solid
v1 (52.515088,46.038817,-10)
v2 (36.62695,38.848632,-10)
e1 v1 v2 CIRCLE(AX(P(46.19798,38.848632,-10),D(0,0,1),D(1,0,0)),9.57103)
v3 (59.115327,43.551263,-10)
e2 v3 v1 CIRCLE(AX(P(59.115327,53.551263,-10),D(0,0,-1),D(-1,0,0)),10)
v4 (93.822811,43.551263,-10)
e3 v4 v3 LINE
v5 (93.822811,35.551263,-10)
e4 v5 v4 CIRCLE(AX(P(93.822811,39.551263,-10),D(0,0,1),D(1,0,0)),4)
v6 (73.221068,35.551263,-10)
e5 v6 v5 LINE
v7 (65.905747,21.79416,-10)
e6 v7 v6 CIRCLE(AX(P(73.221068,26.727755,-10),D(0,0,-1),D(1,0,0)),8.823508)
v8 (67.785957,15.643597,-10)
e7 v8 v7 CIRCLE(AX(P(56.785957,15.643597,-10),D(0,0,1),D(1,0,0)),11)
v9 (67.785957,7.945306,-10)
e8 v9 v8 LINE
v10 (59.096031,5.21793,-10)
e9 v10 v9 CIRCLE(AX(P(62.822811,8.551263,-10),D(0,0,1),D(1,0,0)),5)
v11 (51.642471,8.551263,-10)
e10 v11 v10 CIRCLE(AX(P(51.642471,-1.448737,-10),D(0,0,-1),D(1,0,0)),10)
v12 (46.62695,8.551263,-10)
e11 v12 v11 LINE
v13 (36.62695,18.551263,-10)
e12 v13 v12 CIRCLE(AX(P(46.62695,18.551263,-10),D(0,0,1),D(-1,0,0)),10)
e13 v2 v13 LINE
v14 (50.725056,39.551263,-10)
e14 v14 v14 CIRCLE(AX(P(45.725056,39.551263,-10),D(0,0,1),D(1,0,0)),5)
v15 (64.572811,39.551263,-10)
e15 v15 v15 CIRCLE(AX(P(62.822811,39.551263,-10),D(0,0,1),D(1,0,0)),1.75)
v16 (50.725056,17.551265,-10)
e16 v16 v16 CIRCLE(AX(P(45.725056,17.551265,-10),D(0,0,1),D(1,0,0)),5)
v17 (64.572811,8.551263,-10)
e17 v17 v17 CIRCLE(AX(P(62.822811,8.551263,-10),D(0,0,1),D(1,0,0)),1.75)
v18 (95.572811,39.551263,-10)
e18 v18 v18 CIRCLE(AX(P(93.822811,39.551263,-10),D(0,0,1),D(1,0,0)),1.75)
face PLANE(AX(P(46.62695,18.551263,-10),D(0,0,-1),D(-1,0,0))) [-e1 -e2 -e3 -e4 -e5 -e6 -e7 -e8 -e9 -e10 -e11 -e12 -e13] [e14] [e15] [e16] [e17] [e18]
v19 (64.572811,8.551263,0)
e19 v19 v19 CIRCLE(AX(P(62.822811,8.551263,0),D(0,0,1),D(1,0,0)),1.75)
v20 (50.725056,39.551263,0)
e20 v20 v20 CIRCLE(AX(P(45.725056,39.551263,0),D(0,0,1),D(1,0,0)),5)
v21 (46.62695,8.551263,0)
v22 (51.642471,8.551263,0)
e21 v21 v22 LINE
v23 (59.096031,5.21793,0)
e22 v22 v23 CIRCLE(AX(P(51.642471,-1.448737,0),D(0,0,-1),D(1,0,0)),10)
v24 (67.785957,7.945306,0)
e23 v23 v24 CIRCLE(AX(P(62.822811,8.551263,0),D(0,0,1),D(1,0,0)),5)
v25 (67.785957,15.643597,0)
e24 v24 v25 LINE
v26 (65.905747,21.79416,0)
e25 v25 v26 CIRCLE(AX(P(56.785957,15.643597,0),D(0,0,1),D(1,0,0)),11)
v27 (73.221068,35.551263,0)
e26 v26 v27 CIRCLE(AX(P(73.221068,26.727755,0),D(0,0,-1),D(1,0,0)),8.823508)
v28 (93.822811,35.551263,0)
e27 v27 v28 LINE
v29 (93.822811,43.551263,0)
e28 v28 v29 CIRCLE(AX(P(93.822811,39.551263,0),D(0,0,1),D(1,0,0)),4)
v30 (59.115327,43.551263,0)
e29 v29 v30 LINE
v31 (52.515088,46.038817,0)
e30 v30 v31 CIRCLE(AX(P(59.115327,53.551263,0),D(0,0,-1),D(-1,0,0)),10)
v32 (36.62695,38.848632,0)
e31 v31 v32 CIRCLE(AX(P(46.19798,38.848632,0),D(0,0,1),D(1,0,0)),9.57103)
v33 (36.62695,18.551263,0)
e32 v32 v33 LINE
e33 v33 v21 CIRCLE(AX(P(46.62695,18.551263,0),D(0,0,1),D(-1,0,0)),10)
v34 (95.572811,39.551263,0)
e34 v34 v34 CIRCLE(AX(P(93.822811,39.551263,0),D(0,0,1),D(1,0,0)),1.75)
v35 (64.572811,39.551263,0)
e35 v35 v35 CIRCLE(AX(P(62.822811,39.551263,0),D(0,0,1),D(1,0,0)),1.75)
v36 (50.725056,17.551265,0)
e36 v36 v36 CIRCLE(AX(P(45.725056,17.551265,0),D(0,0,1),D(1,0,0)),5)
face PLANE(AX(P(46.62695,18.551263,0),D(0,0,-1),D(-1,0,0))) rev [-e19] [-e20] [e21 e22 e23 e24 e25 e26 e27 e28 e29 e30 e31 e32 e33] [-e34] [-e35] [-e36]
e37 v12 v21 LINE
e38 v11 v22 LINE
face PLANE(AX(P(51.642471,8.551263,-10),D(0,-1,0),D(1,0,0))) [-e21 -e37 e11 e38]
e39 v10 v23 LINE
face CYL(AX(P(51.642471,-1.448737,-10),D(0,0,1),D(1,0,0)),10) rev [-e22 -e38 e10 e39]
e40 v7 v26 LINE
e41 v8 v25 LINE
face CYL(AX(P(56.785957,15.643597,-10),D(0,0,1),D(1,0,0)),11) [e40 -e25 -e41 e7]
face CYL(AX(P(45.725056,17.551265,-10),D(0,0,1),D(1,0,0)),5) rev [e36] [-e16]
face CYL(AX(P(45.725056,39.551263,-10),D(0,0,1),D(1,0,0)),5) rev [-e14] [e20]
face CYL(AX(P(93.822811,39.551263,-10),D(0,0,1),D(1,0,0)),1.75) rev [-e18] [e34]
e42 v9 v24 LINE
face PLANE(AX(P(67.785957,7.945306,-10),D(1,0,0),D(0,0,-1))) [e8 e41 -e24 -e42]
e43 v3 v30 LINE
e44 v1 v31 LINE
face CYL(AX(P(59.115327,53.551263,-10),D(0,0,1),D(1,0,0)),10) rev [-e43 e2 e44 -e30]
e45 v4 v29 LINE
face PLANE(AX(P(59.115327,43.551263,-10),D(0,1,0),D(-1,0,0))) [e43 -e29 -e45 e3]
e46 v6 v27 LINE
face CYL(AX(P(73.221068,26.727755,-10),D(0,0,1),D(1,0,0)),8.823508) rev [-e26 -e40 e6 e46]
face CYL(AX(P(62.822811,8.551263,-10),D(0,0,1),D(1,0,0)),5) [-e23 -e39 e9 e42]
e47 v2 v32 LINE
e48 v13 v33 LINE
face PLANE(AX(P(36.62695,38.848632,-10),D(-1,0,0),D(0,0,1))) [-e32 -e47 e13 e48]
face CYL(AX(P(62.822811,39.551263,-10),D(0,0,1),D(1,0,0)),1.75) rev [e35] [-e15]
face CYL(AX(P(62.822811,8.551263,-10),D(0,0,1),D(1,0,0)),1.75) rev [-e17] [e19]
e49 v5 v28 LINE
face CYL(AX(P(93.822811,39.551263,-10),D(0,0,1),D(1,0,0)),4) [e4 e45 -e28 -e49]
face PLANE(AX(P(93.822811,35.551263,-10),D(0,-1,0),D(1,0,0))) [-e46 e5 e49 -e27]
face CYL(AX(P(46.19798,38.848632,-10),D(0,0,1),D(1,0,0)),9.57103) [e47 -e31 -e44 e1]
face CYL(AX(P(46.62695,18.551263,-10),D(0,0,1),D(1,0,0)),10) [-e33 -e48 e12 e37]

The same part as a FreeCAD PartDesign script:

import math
import FreeCAD as App
import Part
import Sketcher

doc = App.newDocument("Part")
body = doc.addObject("PartDesign::Body", "Body")

sketch1 = doc.addObject("Sketcher::SketchObject", "Sketch")
body.addObject(sketch1)
sketch1.AttachmentSupport = (doc.XY_Plane, [""])
sketch1.MapMode = "FlatFace"
sketch1.addGeometry(Part.LineSegment(App.Vector(93.822811, 43.551263, 0), App.Vector(59.115327, 43.551263, 0)), False)
sketch1.addGeometry(Part.ArcOfCircle(Part.Circle(App.Vector(59.115327, 53.551263, 0), App.Vector(0, 0, 1), 10), math.radians(-131.301695), math.radians(-90)), False)
sketch1.addGeometry(Part.ArcOfCircle(Part.Circle(App.Vector(46.19798, 38.848632, 0), App.Vector(0, 0, 1), 9.57103), math.radians(48.698305), math.radians(180)), False)
sketch1.addGeometry(Part.LineSegment(App.Vector(36.62695, 38.848632, 0), App.Vector(36.62695, 18.551263, 0)), False)
sketch1.addGeometry(Part.ArcOfCircle(Part.Circle(App.Vector(46.62695, 18.551263, 0), App.Vector(0, 0, 1), 10), math.radians(180), math.radians(270)), False)
sketch1.addGeometry(Part.LineSegment(App.Vector(46.62695, 8.551263, 0), App.Vector(51.642471, 8.551263, 0)), False)
sketch1.addGeometry(Part.ArcOfCircle(Part.Circle(App.Vector(51.642471, -1.448737, 0), App.Vector(0, 0, 1), 10), math.radians(41.810315), math.radians(90)), False)
sketch1.addGeometry(Part.ArcOfCircle(Part.Circle(App.Vector(62.822811, 8.551263, 0), App.Vector(0, 0, 1), 5), math.radians(-138.189685), math.radians(-54.655542)), False)
sketch1.addGeometry(Part.ArcOfCircle(Part.Circle(App.Vector(62.822811, 8.551263, 0), App.Vector(0, 0, 1), 5), math.radians(-54.655542), math.radians(-6.960865)), False)
sketch1.addGeometry(Part.LineSegment(App.Vector(67.785957, 7.945306, 0), App.Vector(67.785957, 15.643597, 0)), False)
sketch1.addGeometry(Part.ArcOfCircle(Part.Circle(App.Vector(56.785957, 15.643597, 0), App.Vector(0, 0, 1), 11), math.radians(0), math.radians(33.996492)), False)
sketch1.addGeometry(Part.ArcOfCircle(Part.Circle(App.Vector(73.221068, 26.727755, 0), App.Vector(0, 0, 1), 8.823508), math.radians(90), math.radians(213.996492)), False)
sketch1.addGeometry(Part.LineSegment(App.Vector(73.221068, 35.551263, 0), App.Vector(93.822811, 35.551263, 0)), False)
sketch1.addGeometry(Part.ArcOfCircle(Part.Circle(App.Vector(93.822811, 39.551263, 0), App.Vector(0, 0, 1), 4), math.radians(-90), math.radians(90)), False)
sketch1.addGeometry(Part.Circle(App.Vector(62.822811, 8.551263, 0), App.Vector(0, 0, 1), 1.75), False)
sketch1.addGeometry(Part.Circle(App.Vector(45.725056, 17.551265, 0), App.Vector(0, 0, 1), 5), False)
sketch1.addGeometry(Part.Circle(App.Vector(93.822811, 39.551263, 0), App.Vector(0, 0, 1), 1.75), False)
sketch1.addGeometry(Part.Circle(App.Vector(62.822811, 39.551263, 0), App.Vector(0, 0, 1), 1.75), False)
sketch1.addGeometry(Part.Circle(App.Vector(45.725056, 39.551263, 0), App.Vector(0, 0, 1), 5), False)
sketch1.addConstraint(Sketcher.Constraint("Tangent", 0, 2, 1, 2))
sketch1.addConstraint(Sketcher.Constraint("Tangent", 1, 1, 2, 1))
sketch1.addConstraint(Sketcher.Constraint("Tangent", 2, 2, 3, 1))
sketch1.addConstraint(Sketcher.Constraint("Tangent", 3, 2, 4, 1))
sketch1.addConstraint(Sketcher.Constraint("Tangent", 4, 2, 5, 1))
sketch1.addConstraint(Sketcher.Constraint("Tangent", 5, 2, 6, 2))
sketch1.addConstraint(Sketcher.Constraint("Tangent", 6, 1, 7, 1))
sketch1.addConstraint(Sketcher.Constraint("Tangent", 7, 2, 8, 1))
sketch1.addConstraint(Sketcher.Constraint("Coincident", 8, 2, 9, 1))
sketch1.addConstraint(Sketcher.Constraint("Tangent", 9, 2, 10, 1))
sketch1.addConstraint(Sketcher.Constraint("Tangent", 10, 2, 11, 2))
sketch1.addConstraint(Sketcher.Constraint("Tangent", 11, 1, 12, 1))
sketch1.addConstraint(Sketcher.Constraint("Tangent", 12, 2, 13, 1))
sketch1.addConstraint(Sketcher.Constraint("Tangent", 13, 2, 0, 1))
sketch1.addConstraint(Sketcher.Constraint("Horizontal", 0))
sketch1.addConstraint(Sketcher.Constraint("Vertical", 3))
sketch1.addConstraint(Sketcher.Constraint("Horizontal", 5))
sketch1.addConstraint(Sketcher.Constraint("Vertical", 9))
sketch1.addConstraint(Sketcher.Constraint("Horizontal", 12))
sketch1.addConstraint(Sketcher.Constraint("Coincident", 14, 3, 7, 3))
sketch1.addConstraint(Sketcher.Constraint("Coincident", 16, 3, 13, 3))
sketch1.addConstraint(Sketcher.Constraint("Equal", 1, 4))
sketch1.addConstraint(Sketcher.Constraint("Equal", 4, 6))
sketch1.addConstraint(Sketcher.Constraint("Equal", 7, 8))
sketch1.addConstraint(Sketcher.Constraint("Equal", 8, 15))
sketch1.addConstraint(Sketcher.Constraint("Equal", 14, 16))
sketch1.addConstraint(Sketcher.Constraint("Equal", 16, 17))
sketch1.addConstraint(Sketcher.Constraint("Equal", 15, 18))
sketch1.addConstraint(Sketcher.Constraint("Horizontal", 16, 3, 17, 3))
sketch1.addConstraint(Sketcher.Constraint("Horizontal", 17, 3, 18, 3))
sketch1.addConstraint(Sketcher.Constraint("Horizontal", 14, 3, 4, 2))
sketch1.addConstraint(Sketcher.Constraint("Vertical", 14, 3, 17, 3))
sketch1.addConstraint(Sketcher.Constraint("Vertical", 15, 3, 18, 3))
sketch1.addConstraint(Sketcher.Constraint("Diameter", 15, 10.0))
sketch1.addConstraint(Sketcher.Constraint("Radius", 1, 10.0))
sketch1.addConstraint(Sketcher.Constraint("Radius", 10, 11.0))
sketch1.addConstraint(Sketcher.Constraint("Radius", 13, 4.0))
sketch1.addConstraint(Sketcher.Constraint("Diameter", 14, 3.5))
sketch1.addConstraint(Sketcher.Constraint("DistanceY", 4, 3, 1, 3, 35.0))
sketch1.addConstraint(Sketcher.Constraint("DistanceX", 7, 3, 13, 3, 31.0))
sketch1.addConstraint(Sketcher.Constraint("DistanceY", 15, 3, 4, 3, 0.999998))
sketch1.addConstraint(Sketcher.Constraint("Radius", 2, 9.57103))
sketch1.addConstraint(Sketcher.Constraint("Radius", 11, 8.823508))
sketch1.addConstraint(Sketcher.Constraint("DistanceX", 5, 1, 5, 2, 5.015521))
sketch1.addConstraint(Sketcher.Constraint("DistanceY", 3, 2, 3, 1, 20.297369))
sketch1.addConstraint(Sketcher.Constraint("DistanceY", 9, 1, 9, 2, 7.698291))
sketch1.addConstraint(Sketcher.Constraint("DistanceX", 15, 3, 10, 3, 11.060901))
sketch1.addConstraint(Sketcher.Constraint("DistanceX", 12, 1, 12, 2, 20.601743))
sketch1.addConstraint(Sketcher.Constraint("DistanceX", -1, 1, 2, 3, 46.19798))
sketch1.addConstraint(Sketcher.Constraint("DistanceY", -1, 1, 6, 1, 5.21793))
sketch1.addConstraint(Sketcher.Constraint("DistanceY", -1, 1, 7, 2, 4.472818))
pad1 = doc.addObject("PartDesign::Pad", "Pad")
body.addObject(pad1)
pad1.Profile = sketch1
pad1.Length = 10
pad1.Reversed = True

doc.recompute()
